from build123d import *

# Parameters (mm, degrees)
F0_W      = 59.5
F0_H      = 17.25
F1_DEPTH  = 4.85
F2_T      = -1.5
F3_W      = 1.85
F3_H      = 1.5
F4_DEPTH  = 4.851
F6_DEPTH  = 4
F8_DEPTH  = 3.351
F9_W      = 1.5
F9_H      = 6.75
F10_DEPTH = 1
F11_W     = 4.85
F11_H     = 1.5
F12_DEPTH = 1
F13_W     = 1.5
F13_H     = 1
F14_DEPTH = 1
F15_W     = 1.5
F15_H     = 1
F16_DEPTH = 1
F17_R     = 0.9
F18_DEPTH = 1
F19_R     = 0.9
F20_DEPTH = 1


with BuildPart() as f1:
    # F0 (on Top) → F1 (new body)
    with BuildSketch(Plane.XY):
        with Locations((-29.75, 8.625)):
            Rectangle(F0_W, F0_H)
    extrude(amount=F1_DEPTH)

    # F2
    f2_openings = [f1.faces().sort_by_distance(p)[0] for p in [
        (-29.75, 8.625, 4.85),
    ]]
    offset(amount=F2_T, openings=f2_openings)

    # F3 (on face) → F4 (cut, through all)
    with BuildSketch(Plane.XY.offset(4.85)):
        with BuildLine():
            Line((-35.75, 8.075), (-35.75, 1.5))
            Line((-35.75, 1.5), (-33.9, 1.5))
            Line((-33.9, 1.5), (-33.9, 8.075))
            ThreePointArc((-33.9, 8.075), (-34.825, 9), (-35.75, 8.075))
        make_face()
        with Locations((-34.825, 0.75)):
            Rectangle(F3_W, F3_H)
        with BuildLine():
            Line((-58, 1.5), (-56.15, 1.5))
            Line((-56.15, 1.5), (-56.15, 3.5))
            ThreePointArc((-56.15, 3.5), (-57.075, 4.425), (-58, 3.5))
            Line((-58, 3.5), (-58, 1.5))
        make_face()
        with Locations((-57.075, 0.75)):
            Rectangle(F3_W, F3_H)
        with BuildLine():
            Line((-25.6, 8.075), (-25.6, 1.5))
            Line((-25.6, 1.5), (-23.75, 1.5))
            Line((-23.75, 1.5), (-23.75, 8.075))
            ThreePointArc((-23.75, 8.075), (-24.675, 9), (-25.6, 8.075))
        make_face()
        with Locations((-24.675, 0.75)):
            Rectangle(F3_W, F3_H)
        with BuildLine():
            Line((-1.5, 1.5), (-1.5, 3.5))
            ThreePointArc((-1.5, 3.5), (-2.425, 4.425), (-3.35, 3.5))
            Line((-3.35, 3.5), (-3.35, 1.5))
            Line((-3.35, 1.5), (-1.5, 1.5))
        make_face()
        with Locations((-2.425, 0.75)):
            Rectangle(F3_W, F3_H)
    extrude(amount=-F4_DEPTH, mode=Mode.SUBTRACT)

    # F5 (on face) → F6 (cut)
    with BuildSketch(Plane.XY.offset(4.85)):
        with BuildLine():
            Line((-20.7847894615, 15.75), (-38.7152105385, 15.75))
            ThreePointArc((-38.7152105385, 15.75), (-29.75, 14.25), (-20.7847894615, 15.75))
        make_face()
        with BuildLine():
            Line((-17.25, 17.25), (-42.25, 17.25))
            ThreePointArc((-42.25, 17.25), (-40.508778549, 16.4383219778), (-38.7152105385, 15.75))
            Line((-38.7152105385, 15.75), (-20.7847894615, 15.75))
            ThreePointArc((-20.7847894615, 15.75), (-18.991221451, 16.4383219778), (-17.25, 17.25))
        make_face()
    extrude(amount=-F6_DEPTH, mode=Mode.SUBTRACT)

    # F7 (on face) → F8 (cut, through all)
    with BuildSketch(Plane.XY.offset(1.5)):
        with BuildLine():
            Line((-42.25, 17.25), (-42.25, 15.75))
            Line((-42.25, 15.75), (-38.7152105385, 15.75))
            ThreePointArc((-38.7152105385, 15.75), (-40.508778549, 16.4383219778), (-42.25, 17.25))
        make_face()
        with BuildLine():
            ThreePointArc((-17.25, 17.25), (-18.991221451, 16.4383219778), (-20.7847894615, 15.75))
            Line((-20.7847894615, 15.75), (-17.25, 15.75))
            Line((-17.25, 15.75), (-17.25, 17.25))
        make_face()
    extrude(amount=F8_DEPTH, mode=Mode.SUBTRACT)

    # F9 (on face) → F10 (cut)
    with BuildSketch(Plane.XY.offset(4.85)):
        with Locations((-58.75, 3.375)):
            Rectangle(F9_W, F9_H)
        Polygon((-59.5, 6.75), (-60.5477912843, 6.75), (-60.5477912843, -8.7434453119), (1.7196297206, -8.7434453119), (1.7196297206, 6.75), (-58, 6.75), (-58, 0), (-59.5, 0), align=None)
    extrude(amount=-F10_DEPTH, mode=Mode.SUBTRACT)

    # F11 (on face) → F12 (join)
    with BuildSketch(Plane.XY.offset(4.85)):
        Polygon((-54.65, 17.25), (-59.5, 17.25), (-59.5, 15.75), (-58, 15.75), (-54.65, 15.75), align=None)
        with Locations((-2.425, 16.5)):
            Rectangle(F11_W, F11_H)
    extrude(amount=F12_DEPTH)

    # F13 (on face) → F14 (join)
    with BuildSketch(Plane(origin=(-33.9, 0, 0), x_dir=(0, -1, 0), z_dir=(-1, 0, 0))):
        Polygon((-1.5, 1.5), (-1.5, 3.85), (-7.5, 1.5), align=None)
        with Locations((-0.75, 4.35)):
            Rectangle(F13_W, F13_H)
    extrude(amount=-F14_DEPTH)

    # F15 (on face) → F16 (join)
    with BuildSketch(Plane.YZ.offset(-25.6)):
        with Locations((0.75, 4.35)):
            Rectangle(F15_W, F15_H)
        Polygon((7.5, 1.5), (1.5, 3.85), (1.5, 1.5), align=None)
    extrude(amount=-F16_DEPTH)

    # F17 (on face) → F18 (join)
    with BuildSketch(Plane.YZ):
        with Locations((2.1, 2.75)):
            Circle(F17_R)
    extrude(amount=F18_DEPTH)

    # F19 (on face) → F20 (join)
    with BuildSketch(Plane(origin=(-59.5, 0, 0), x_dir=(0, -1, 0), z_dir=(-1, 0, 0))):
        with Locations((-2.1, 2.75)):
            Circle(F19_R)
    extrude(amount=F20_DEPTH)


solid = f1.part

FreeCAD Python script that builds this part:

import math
import FreeCAD as App
import Part
import Sketcher
Q = App.Units.Quantity


def faces_at(feature, points):
    """Names of the faces that lie closest to the given points."""
    faces = feature.Shape.Faces
    near = lambda p: min(range(len(faces)), key=lambda i: faces[i].distToShape(Part.Vertex(*p))[0])
    return sorted({f"Face{near(p) + 1}" for p in points})


def add_polygon(sketch, points):
    """Adds a closed chain of lines whose ends are joined by coincident constraints."""
    first, n = sketch.GeometryCount, len(points)
    for a, b in zip(points, points[1:] + points[:1]):
        sketch.addGeometry(Part.LineSegment(App.Vector(*a, 0), App.Vector(*b, 0)), False)
    for i in range(n):
        sketch.addConstraint(Sketcher.Constraint("Coincident", first + i, 2, first + (i + 1) % n, 1))

doc = App.newDocument("Part")
params = doc.addObject("Spreadsheet::Sheet", "Params")
for row, (alias, value) in enumerate([
    ("sketch1_width", "59.5 mm"),
    ("sketch1_height", "17.25 mm"),
    ("pad1_length", "4.85 mm"),
    ("thickness_wall", "1.5 mm"),
    ("sketch2_height", "3.5 mm"),
    ("sketch3_width", "25 mm"),
    ("pocket2_length", "4 mm"),
    ("sketch4_height", "1.5 mm"),
    ("pocket4_length", "1 mm"),
    ("sketch6_height", "1.5 mm"),
    ("sketch6_width", "4.85 mm"),
    ("pad2_length", "1 mm"),
    ("sketch7_width", "6 mm"),
    ("sketch7_height", "1 mm"),
    ("sketch7_width2", "1.5 mm"),
    ("sketch7_height2", "2.35 mm"),
    ("pad3_length", "1 mm"),
    ("sketch8_width", "6 mm"),
    ("sketch8_height", "1 mm"),
    ("sketch8_width2", "1.5 mm"),
    ("sketch8_height2", "2.35 mm"),
    ("pad4_length", "1 mm"),
    ("sketch9_diameter", "1.8 mm"),
    ("pad5_length", "1 mm"),
    ("sketch10_diameter", "1.8 mm"),
    ("pad6_length", "1 mm"),
], start=1):
    params.set(f"A{row}", alias)
    params.set(f"B{row}", "=" + value)
    params.setAlias(f"B{row}", alias)

body = doc.addObject("PartDesign::Body", "Body")

# Sketch on XY plane
sketch1 = body.newObject("Sketcher::SketchObject", "Sketch")
sketch1.AttachmentSupport = (doc.getObject("XY_Plane"), [""])
sketch1.MapMode = "FlatFace"
add_polygon(sketch1, [(-60, 17), (-60, 0), (0, 0), (0, 17)])  # lines 0-3
sketch1.addConstraint(Sketcher.Constraint("Vertical", 0))
sketch1.addConstraint(Sketcher.Constraint("Horizontal", 1))
sketch1.addConstraint(Sketcher.Constraint("Vertical", 2))
sketch1.addConstraint(Sketcher.Constraint("Horizontal", 3))
sketch1.addConstraint(Sketcher.Constraint("Coincident", 1, 2, -1, 1))
sketch1.addConstraint(Sketcher.Constraint("DistanceX", 1, 1, 1, 2, Q("59.5 mm")))
sketch1.addConstraint(Sketcher.Constraint("DistanceY", 0, 2, 0, 1, Q("17.25 mm")))
sketch1.setExpression("Constraints[9]", "Params.sketch1_width")
sketch1.setExpression("Constraints[10]", "Params.sketch1_height")
pad1 = body.newObject("PartDesign::Pad", "Pad")
pad1.Profile = sketch1
pad1.setExpression("Length", "Params.pad1_length")
doc.recompute()

thickness = body.newObject("PartDesign::Thickness", "Thickness")
thickness.Base = (pad1, faces_at(pad1, [(-29.75, 8.625, 4.85)]))
thickness.setExpression("Value", "Params.thickness_wall")
thickness.Reversed = True
thickness.Join = "Arc"

# Sketch on XY plane
sketch2 = body.newObject("Sketcher::SketchObject", "Sketch001")
sketch2.AttachmentSupport = (doc.getObject("XY_Plane"), [""])
sketch2.MapMode = "FlatFace"
sketch2.AttachmentOffset = App.Placement(App.Vector(0, 0, 4.85), App.Rotation())
sketch2.addGeometry(Part.LineSegment(App.Vector(-35.8, 8.1, 0), App.Vector(-35.8, 0, 0)), False)
sketch2.addGeometry(Part.LineSegment(App.Vector(-35.8, 0, 0), App.Vector(-33.9, 0, 0)), False)
sketch2.addGeometry(Part.LineSegment(App.Vector(-33.9, 0, 0), App.Vector(-33.9, 8.1, 0)), False)
sketch2.addGeometry(Part.ArcOfCircle(Part.Circle(App.Vector(-34.8, 8.1, 0), App.Vector(0, 0, 1), 0.9), math.radians(0), math.radians(180)), False)
sketch2.addGeometry(Part.ArcOfCircle(Part.Circle(App.Vector(-57.1, 3.5, 0), App.Vector(0, 0, 1), 0.9), math.radians(0), math.radians(180)), False)
sketch2.addGeometry(Part.LineSegment(App.Vector(-58, 3.5, 0), App.Vector(-58, 0, 0)), False)
sketch2.addGeometry(Part.LineSegment(App.Vector(-58, 0, 0), App.Vector(-56.1, 0, 0)), False)
sketch2.addGeometry(Part.LineSegment(App.Vector(-56.1, 0, 0), App.Vector(-56.1, 3.5, 0)), False)
sketch2.addGeometry(Part.LineSegment(App.Vector(-25.6, 8.1, 0), App.Vector(-25.6, 0, 0)), False)
sketch2.addGeometry(Part.LineSegment(App.Vector(-25.6, 0, 0), App.Vector(-23.8, 0, 0)), False)
sketch2.addGeometry(Part.LineSegment(App.Vector(-23.8, 0, 0), App.Vector(-23.8, 8.1, 0)), False)
sketch2.addGeometry(Part.ArcOfCircle(Part.Circle(App.Vector(-24.7, 8.1, 0), App.Vector(0, 0, 1), 0.9), math.radians(0), math.radians(180)), False)
sketch2.addGeometry(Part.ArcOfCircle(Part.Circle(App.Vector(-2.4, 3.5, 0), App.Vector(0, 0, 1), 0.9), math.radians(0), math.radians(180)), False)
sketch2.addGeometry(Part.LineSegment(App.Vector(-3.4, 3.5, 0), App.Vector(-3.4, 0, 0)), False)
sketch2.addGeometry(Part.LineSegment(App.Vector(-3.4, 0, 0), App.Vector(-1.5, 0, 0)), False)
sketch2.addGeometry(Part.LineSegment(App.Vector(-1.5, 0, 0), App.Vector(-1.5, 3.5, 0)), False)
sketch2.addConstraint(Sketcher.Constraint("Coincident", 0, 2, 1, 1))
sketch2.addConstraint(Sketcher.Constraint("Coincident", 1, 2, 2, 1))
sketch2.addConstraint(Sketcher.Constraint("Tangent", 2, 2, 3, 1))
sketch2.addConstraint(Sketcher.Constraint("Tangent", 3, 2, 0, 1))
sketch2.addConstraint(Sketcher.Constraint("Tangent", 4, 2, 5, 1))
sketch2.addConstraint(Sketcher.Constraint("Coincident", 5, 2, 6, 1))
sketch2.addConstraint(Sketcher.Constraint("Coincident", 6, 2, 7, 1))
sketch2.addConstraint(Sketcher.Constraint("Tangent", 7, 2, 4, 1))
sketch2.addConstraint(Sketcher.Constraint("Coincident", 8, 2, 9, 1))
sketch2.addConstraint(Sketcher.Constraint("Coincident", 9, 2, 10, 1))
sketch2.addConstraint(Sketcher.Constraint("Tangent", 10, 2, 11, 1))
sketch2.addConstraint(Sketcher.Constraint("Tangent", 11, 2, 8, 1))
sketch2.addConstraint(Sketcher.Constraint("Tangent", 12, 2, 13, 1))
sketch2.addConstraint(Sketcher.Constraint("Coincident", 13, 2, 14, 1))
sketch2.addConstraint(Sketcher.Constraint("Coincident", 14, 2, 15, 1))
sketch2.addConstraint(Sketcher.Constraint("Tangent", 15, 2, 12, 1))
sketch2.addConstraint(Sketcher.Constraint("Vertical", 0))
sketch2.addConstraint(Sketcher.Constraint("Horizontal", 1))
sketch2.addConstraint(Sketcher.Constraint("Vertical", 2))
sketch2.addConstraint(Sketcher.Constraint("Vertical", 5))
sketch2.addConstraint(Sketcher.Constraint("Horizontal", 6))
sketch2.addConstraint(Sketcher.Constraint("Vertical", 7))
sketch2.addConstraint(Sketcher.Constraint("Vertical", 8))
sketch2.addConstraint(Sketcher.Constraint("Horizontal", 9))
sketch2.addConstraint(Sketcher.Constraint("Vertical", 10))
sketch2.addConstraint(Sketcher.Constraint("Vertical", 13))
sketch2.addConstraint(Sketcher.Constraint("Horizontal", 14))
sketch2.addConstraint(Sketcher.Constraint("Vertical", 15))
sketch2.addConstraint(Sketcher.Constraint("Equal", 3, 4))
sketch2.addConstraint(Sketcher.Constraint("Equal", 4, 11))
sketch2.addConstraint(Sketcher.Constraint("Equal", 11, 12))
sketch2.addConstraint(Sketcher.Constraint("PointOnObject", 0, 2, -1))
sketch2.addConstraint(Sketcher.Constraint("PointOnObject", 5, 2, -1))
sketch2.addConstraint(Sketcher.Constraint("PointOnObject", 8, 2, -1))
sketch2.addConstraint(Sketcher.Constraint("PointOnObject", 13, 2, -1))
sketch2.addConstraint(Sketcher.Constraint("Horizontal", 3, 3, 11, 3))
sketch2.addConstraint(Sketcher.Constraint("Horizontal", 4, 3, 12, 3))
sketch2.addConstraint(Sketcher.Constraint("DistanceY", 5, 2, 5, 1, Q("3.5 mm")))
sketch2.addConstraint(Sketcher.Constraint("DistanceX", 4, 2, -1, 1, Q("58 mm")))
sketch2.addConstraint(Sketcher.Constraint("Radius", 3, Q("0.925 mm")))
sketch2.addConstraint(Sketcher.Constraint("DistanceX", 0, 2, 9, 2, Q("12 mm")))
sketch2.addConstraint(Sketcher.Constraint("DistanceX", 1, 2, -1, 1, Q("33.9 mm")))
sketch2.addConstraint(Sketcher.Constraint("DistanceX", 14, 2, -1, 1, Q("1.5 mm")))
sketch2.addConstraint(Sketcher.Constraint("DistanceY", 0, 2, 0, 1, Q("8.075 mm")))
sketch2.setExpression("Constraints[37]", "Params.sketch2_height")
pocket1 = body.newObject("PartDesign::Pocket", "Pocket")
pocket1.Profile = sketch2
pocket1.Type = "ThroughAll"

# Sketch on XY plane
sketch3 = body.newObject("Sketcher::SketchObject", "Sketch002")
sketch3.AttachmentSupport = (doc.getObject("XY_Plane"), [""])
sketch3.MapMode = "FlatFace"
sketch3.AttachmentOffset = App.Placement(App.Vector(0, 0, 4.85), App.Rotation())
sketch3.addGeometry(Part.ArcOfCircle(Part.Circle(App.Vector(-29.8, 41.8, 0), App.Vector(0, 0, 1), 27.5), math.radians(-109), math.radians(-71)), False)
sketch3.addGeometry(Part.ArcOfCircle(Part.Circle(App.Vector(-29.7, 41.8, 0), App.Vector(0, 0, 1), 27.5), math.radians(-71), math.radians(-63.01)), False)
sketch3.addGeometry(Part.LineSegment(App.Vector(-17.2, 17.2, 0), App.Vector(-42.2, 17.2, 0)), False)
sketch3.addGeometry(Part.ArcOfCircle(Part.Circle(App.Vector(-29.8, 41.8, 0), App.Vector(0, 0, 1), 27.5), math.radians(-116.99), math.radians(-109)), False)
sketch3.addConstraint(Sketcher.Constraint("Tangent", 0, 2, 1, 1))
sketch3.addConstraint(Sketcher.Constraint("Coincident", 1, 2, 2, 1))
sketch3.addConstraint(Sketcher.Constraint("Coincident", 2, 2, 3, 1))
sketch3.addConstraint(Sketcher.Constraint("Tangent", 3, 2, 0, 1))
sketch3.addConstraint(Sketcher.Constraint("Horizontal", 2))
sketch3.addConstraint(Sketcher.Constraint("Equal", 0, 1))
sketch3.addConstraint(Sketcher.Constraint("Equal", 1, 3))
sketch3.addConstraint(Sketcher.Constraint("Horizontal", 0, 2, 3, 2))
sketch3.addConstraint(Sketcher.Constraint("DistanceX", 2, 2, 2, 1, Q("25 mm")))
sketch3.addConstraint(Sketcher.Constraint("DistanceY", 0, 2, 1, 2, Q("1.5 mm")))
sketch3.addConstraint(Sketcher.Constraint("DistanceX", 0, 3, -1, 1, Q("29.75 mm")))
sketch3.addConstraint(Sketcher.Constraint("DistanceY", -1, 1, 0, 2, Q("15.75 mm")))
sketch3.addConstraint(Sketcher.Constraint("Radius", 0, Q("27.541667 mm")))
sketch3.setExpression("Constraints[8]", "Params.sketch3_width")
pocket2 = body.newObject("PartDesign::Pocket", "Pocket001")
pocket2.Profile = sketch3
pocket2.setExpression("Length", "Params.pocket2_length")

# Sketch on XY plane
sketch4 = body.newObject("Sketcher::SketchObject", "Sketch003")
sketch4.AttachmentSupport = (doc.getObject("XY_Plane"), [""])
sketch4.MapMode = "FlatFace"
sketch4.AttachmentOffset = App.Placement(App.Vector(0, 0, 1.5), App.Rotation())
sketch4.addGeometry(Part.LineSegment(App.Vector(-42.2, 17.2, 0), App.Vector(-42.2, 15.8, 0)), False)
sketch4.addGeometry(Part.LineSegment(App.Vector(-42.2, 15.8, 0), App.Vector(-38.7, 15.8, 0)), False)
sketch4.addGeometry(Part.ArcOfCircle(Part.Circle(App.Vector(-29.8, 41.8, 0), App.Vector(0, 0, 1), 27.5), math.radians(-116.99), math.radians(-109)), False)
sketch4.addGeometry(Part.ArcOfCircle(Part.Circle(App.Vector(-29.7, 41.8, 0), App.Vector(0, 0, 1), 27.5), math.radians(-71), math.radians(-63.01)), False)
sketch4.addGeometry(Part.LineSegment(App.Vector(-20.8, 15.8, 0), App.Vector(-17.2, 15.8, 0)), False)
sketch4.addGeometry(Part.LineSegment(App.Vector(-17.2, 15.8, 0), App.Vector(-17.2, 17.2, 0)), False)
sketch4.addConstraint(Sketcher.Constraint("Coincident", 0, 2, 1, 1))
sketch4.addConstraint(Sketcher.Constraint("Coincident", 1, 2, 2, 2))
sketch4.addConstraint(Sketcher.Constraint("Coincident", 2, 1, 0, 1))
sketch4.addConstraint(Sketcher.Constraint("Coincident", 3, 1, 4, 1))
sketch4.addConstraint(Sketcher.Constraint("Coincident", 4, 2, 5, 1))
sketch4.addConstraint(Sketcher.Constraint("Coincident", 5, 2, 3, 2))
sketch4.addConstraint(Sketcher.Constraint("Vertical", 0))
sketch4.addConstraint(Sketcher.Constraint("Horizontal", 1))
sketch4.addConstraint(Sketcher.Constraint("Horizontal", 4))
sketch4.addConstraint(Sketcher.Constraint("Vertical", 5))
sketch4.addConstraint(Sketcher.Constraint("Coincident", 3, 3, 2, 3))
sketch4.addConstraint(Sketcher.Constraint("Equal", 2, 3))
sketch4.addConstraint(Sketcher.Constraint("Horizontal", 1, 2, 3, 1))
sketch4.addConstraint(Sketcher.Constraint("Horizontal", 2, 1, 5, 2))
sketch4.addConstraint(Sketcher.Constraint("DistanceY", 0, 2, 0, 1, Q("1.5 mm")))
sketch4.addConstraint(Sketcher.Constraint("DistanceX", 0, 2, 4, 2, Q("25 mm")))
sketch4.addConstraint(Sketcher.Constraint("DistanceX", 2, 3, -1, 1, Q("29.75 mm")))
sketch4.addConstraint(Sketcher.Constraint("DistanceY", -1, 1, 0, 2, Q("15.75 mm")))
sketch4.addConstraint(Sketcher.Constraint("Radius", 2, Q("27.541667 mm")))
sketch4.setExpression("Constraints[14]", "Params.sketch4_height")
pocket3 = body.newObject("PartDesign::Pocket", "Pocket002")
pocket3.Profile = sketch4
pocket3.Type = "ThroughAll"
pocket3.Reversed = True

# Sketch on XY plane
sketch5 = body.newObject("Sketcher::SketchObject", "Sketch004")
sketch5.AttachmentSupport = (doc.getObject("XY_Plane"), [""])
sketch5.MapMode = "FlatFace"
sketch5.AttachmentOffset = App.Placement(App.Vector(0, 0, 4.85), App.Rotation())
add_polygon(sketch5, [(-61, 7), (-61, -9), (2, -9), (2, 7)])  # lines 0-3
sketch5.addConstraint(Sketcher.Constraint("Vertical", 0))
sketch5.addConstraint(Sketcher.Constraint("Horizontal", 1))
sketch5.addConstraint(Sketcher.Constraint("Vertical", 2))
sketch5.addConstraint(Sketcher.Constraint("Horizontal", 3))
sketch5.addConstraint(Sketcher.Constraint("DistanceY", -1, 1, 2, 2, Q("6.75 mm")))
sketch5.addConstraint(Sketcher.Constraint("DistanceX", 1, 1, 1, 2, Q("62.267421 mm")))
sketch5.addConstraint(Sketcher.Constraint("DistanceY", 0, 2, 0, 1, Q("15.493445 mm")))
sketch5.addConstraint(Sketcher.Constraint("DistanceX", 0, 2, -1, 1, Q("60.547791 mm")))
pocket4 = body.newObject("PartDesign::Pocket", "Pocket003")
pocket4.Profile = sketch5
pocket4.setExpression("Length", "Params.pocket4_length")

# Sketch on XY plane
sketch6 = body.newObject("Sketcher::SketchObject", "Sketch005")
sketch6.AttachmentSupport = (doc.getObject("XY_Plane"), [""])
sketch6.MapMode = "FlatFace"
sketch6.AttachmentOffset = App.Placement(App.Vector(0, 0, 4.85), App.Rotation())
add_polygon(sketch6, [(-54.6, 17.2), (-59.5, 17.2), (-59.5, 15.8), (-54.6, 15.8)])  # lines 0-3
add_polygon(sketch6, [(-4.8, 17.2), (-4.8, 15.8), (0, 15.8), (0, 17.2)])  # lines 4-7
sketch6.addConstraint(Sketcher.Constraint("Horizontal", 0))
sketch6.addConstraint(Sketcher.Constraint("Vertical", 1))
sketch6.addConstraint(Sketcher.Constraint("Horizontal", 2))
sketch6.addConstraint(Sketcher.Constraint("Vertical", 3))
sketch6.addConstraint(Sketcher.Constraint("Vertical", 4))
sketch6.addConstraint(Sketcher.Constraint("Horizontal", 5))
sketch6.addConstraint(Sketcher.Constraint("Vertical", 6))
sketch6.addConstraint(Sketcher.Constraint("Horizontal", 7))
sketch6.addConstraint(Sketcher.Constraint("PointOnObject", 5, 2, -2))
sketch6.addConstraint(Sketcher.Constraint("Horizontal", 2, 2, 4, 2))
sketch6.addConstraint(Sketcher.Constraint("Horizontal", 3, 2, 6, 2))
sketch6.addConstraint(Sketcher.Constraint("Equal", 2, 5))
sketch6.addConstraint(Sketcher.Constraint("DistanceY", 1, 2, 1, 1, Q("1.5 mm")))
sketch6.addConstraint(Sketcher.Constraint("DistanceX", 0, 2, 0, 1, Q("4.85 mm")))
sketch6.addConstraint(Sketcher.Constraint("DistanceX", 0, 2, -1, 1, Q("59.5 mm")))
sketch6.addConstraint(Sketcher.Constraint("DistanceY", -1, 1, 0, 2, Q("17.25 mm")))
sketch6.setExpression("Constraints[20]", "Params.sketch6_height")
sketch6.setExpression("Constraints[21]", "Params.sketch6_width")
pad2 = body.newObject("PartDesign::Pad", "Pad001")
pad2.Profile = sketch6
pad2.setExpression("Length", "Params.pad2_length")

# Sketch on YZ plane
sketch7 = body.newObject("Sketcher::SketchObject", "Sketch006")
sketch7.AttachmentSupport = (doc.getObject("YZ_Plane"), [""])
sketch7.MapMode = "FlatFace"
sketch7.AttachmentOffset = App.Placement(App.Vector(0, 0, -33.9), App.Rotation())
add_polygon(sketch7, [(1.5, 1.5), (1.5, 3.9), (7.5, 1.5)])  # lines 0-2
add_polygon(sketch7, [(1.5, 4.8), (1.5, 3.9), (0, 3.9), (0, 4.8)])  # lines 3-6
sketch7.addConstraint(Sketcher.Constraint("Vertical", 0))
sketch7.addConstraint(Sketcher.Constraint("Horizontal", 2))
sketch7.addConstraint(Sketcher.Constraint("Vertical", 3))
sketch7.addConstraint(Sketcher.Constraint("Horizontal", 4))
sketch7.addConstraint(Sketcher.Constraint("Vertical", 5))
sketch7.addConstraint(Sketcher.Constraint("Horizontal", 6))
sketch7.addConstraint(Sketcher.Constraint("Coincident", 3, 2, 0, 2))
sketch7.addConstraint(Sketcher.Constraint("PointOnObject", 4, 2, -2))
sketch7.addConstraint(Sketcher.Constraint("DistanceX", 2, 2, 2, 1, Q("6 mm")))
sketch7.addConstraint(Sketcher.Constraint("DistanceY", 3, 2, 3, 1, Q("1 mm")))
sketch7.addConstraint(Sketcher.Constraint("DistanceX", 4, 2, 4, 1, Q("1.5 mm")))
sketch7.addConstraint(Sketcher.Constraint("DistanceY", 0, 1, 0, 2, Q("2.35 mm")))
sketch7.addConstraint(Sketcher.Constraint("DistanceY", -1, 1, 1, 2, Q("1.5 mm")))
sketch7.setExpression("Constraints[15]", "Params.sketch7_width")
sketch7.setExpression("Constraints[16]", "Params.sketch7_height")
sketch7.setExpression("Constraints[17]", "Params.sketch7_width2")
sketch7.setExpression("Constraints[18]", "Params.sketch7_height2")
pad3 = body.newObject("PartDesign::Pad", "Pad002")
pad3.Profile = sketch7
pad3.setExpression("Length", "Params.pad3_length")

# Sketch on YZ plane
sketch8 = body.newObject("Sketcher::SketchObject", "Sketch007")
sketch8.AttachmentSupport = (doc.getObject("YZ_Plane"), [""])
sketch8.MapMode = "FlatFace"
sketch8.AttachmentOffset = App.Placement(App.Vector(0, 0, -25.6), App.Rotation())
add_polygon(sketch8, [(0, 4.8), (0, 3.9), (1.5, 3.9), (1.5, 4.8)])  # lines 0-3
add_polygon(sketch8, [(7.5, 1.5), (1.5, 3.9), (1.5, 1.5)])  # lines 4-6
sketch8.addConstraint(Sketcher.Constraint("Vertical", 0))
sketch8.addConstraint(Sketcher.Constraint("Horizontal", 1))
sketch8.addConstraint(Sketcher.Constraint("Vertical", 2))
sketch8.addConstraint(Sketcher.Constraint("Horizontal", 3))
sketch8.addConstraint(Sketcher.Constraint("Vertical", 5))
sketch8.addConstraint(Sketcher.Constraint("Horizontal", 6))
sketch8.addConstraint(Sketcher.Constraint("Coincident", 4, 2, 1, 2))
sketch8.addConstraint(Sketcher.Constraint("PointOnObject", 0, 2, -2))
sketch8.addConstraint(Sketcher.Constraint("DistanceX", 6, 1, 6, 2, Q("6 mm")))
sketch8.addConstraint(Sketcher.Constraint("DistanceY", 0, 2, 0, 1, Q("1 mm")))
sketch8.addConstraint(Sketcher.Constraint("DistanceX", 1, 1, 1, 2, Q("1.5 mm")))
sketch8.addConstraint(Sketcher.Constraint("DistanceY", 5, 2, 5, 1, Q("2.35 mm")))
sketch8.addConstraint(Sketcher.Constraint("DistanceY", -1, 1, 5, 2, Q("1.5 mm")))
sketch8.setExpression("Constraints[15]", "Params.sketch8_width")
sketch8.setExpression("Constraints[16]", "Params.sketch8_height")
sketch8.setExpression("Constraints[17]", "Params.sketch8_width2")
sketch8.setExpression("Constraints[18]", "Params.sketch8_height2")
pad4 = body.newObject("PartDesign::Pad", "Pad003")
pad4.Profile = sketch8
pad4.setExpression("Length", "Params.pad4_length")
pad4.Reversed = True

# Sketch on YZ plane
sketch9 = body.newObject("Sketcher::SketchObject", "Sketch008")
sketch9.AttachmentSupport = (doc.getObject("YZ_Plane"), [""])
sketch9.MapMode = "FlatFace"
sketch9.addGeometry(Part.Circle(App.Vector(2.1, 2.8, 0), App.Vector(0, 0, 1), 0.9), False)
sketch9.addConstraint(Sketcher.Constraint("Diameter", 0, Q("1.8 mm")))
sketch9.addConstraint(Sketcher.Constraint("DistanceX", -1, 1, 0, 3, Q("2.1 mm")))
sketch9.addConstraint(Sketcher.Constraint("DistanceY", -1, 1, 0, 3, Q("2.75 mm")))
sketch9.setExpression("Constraints[0]", "Params.sketch9_diameter")
pad5 = body.newObject("PartDesign::Pad", "Pad004")
pad5.Profile = sketch9
pad5.setExpression("Length", "Params.pad5_length")

# Sketch on YZ plane
sketch10 = body.newObject("Sketcher::SketchObject", "Sketch009")
sketch10.AttachmentSupport = (doc.getObject("YZ_Plane"), [""])
sketch10.MapMode = "FlatFace"
sketch10.AttachmentOffset = App.Placement(App.Vector(0, 0, -59.5), App.Rotation())
sketch10.addGeometry(Part.Circle(App.Vector(2.1, 2.8, 0), App.Vector(0, 0, 1), 0.9), False)
sketch10.addConstraint(Sketcher.Constraint("Diameter", 0, Q("1.8 mm")))
sketch10.addConstraint(Sketcher.Constraint("DistanceX", -1, 1, 0, 3, Q("2.1 mm")))
sketch10.addConstraint(Sketcher.Constraint("DistanceY", -1, 1, 0, 3, Q("2.75 mm")))
sketch10.setExpression("Constraints[0]", "Params.sketch10_diameter")
pad6 = body.newObject("PartDesign::Pad", "Pad005")
pad6.Profile = sketch10
pad6.setExpression("Length", "Params.pad6_length")
pad6.Reversed = True

doc.recompute()
